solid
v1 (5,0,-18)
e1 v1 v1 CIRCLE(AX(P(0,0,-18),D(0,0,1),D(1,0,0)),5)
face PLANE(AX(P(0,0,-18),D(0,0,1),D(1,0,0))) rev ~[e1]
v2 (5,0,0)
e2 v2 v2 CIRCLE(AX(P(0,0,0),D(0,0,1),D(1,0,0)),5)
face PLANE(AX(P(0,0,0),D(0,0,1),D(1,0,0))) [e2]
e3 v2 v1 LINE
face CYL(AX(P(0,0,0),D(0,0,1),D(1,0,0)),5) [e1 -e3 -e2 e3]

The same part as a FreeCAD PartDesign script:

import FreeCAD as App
import Part
import Sketcher

V = App.Vector
Q = App.Units.Quantity

doc = App.newDocument("Part")
body = doc.addObject("PartDesign::Body", "Body")

# Sketch on XY plane
sketch1 = body.newObject("Sketcher::SketchObject", "Sketch")
sketch1.AttachmentSupport = (doc.getObject("XY_Plane"), [""])
sketch1.MapMode = "FlatFace"
sketch1.addGeometry(Part.Circle(V(0, 0, 0), V(0, 0, 1), 5), False)
sketch1.addConstraint([
    Sketcher.Constraint("Coincident", 0, 3, -1, 1),
    Sketcher.Constraint("Diameter", 0, Q("10 mm")),
])
pad1 = body.newObject("PartDesign::Pad", "Pad")
pad1.Profile = sketch1
pad1.Length = 18
pad1.Reversed = True

doc.recompute()
